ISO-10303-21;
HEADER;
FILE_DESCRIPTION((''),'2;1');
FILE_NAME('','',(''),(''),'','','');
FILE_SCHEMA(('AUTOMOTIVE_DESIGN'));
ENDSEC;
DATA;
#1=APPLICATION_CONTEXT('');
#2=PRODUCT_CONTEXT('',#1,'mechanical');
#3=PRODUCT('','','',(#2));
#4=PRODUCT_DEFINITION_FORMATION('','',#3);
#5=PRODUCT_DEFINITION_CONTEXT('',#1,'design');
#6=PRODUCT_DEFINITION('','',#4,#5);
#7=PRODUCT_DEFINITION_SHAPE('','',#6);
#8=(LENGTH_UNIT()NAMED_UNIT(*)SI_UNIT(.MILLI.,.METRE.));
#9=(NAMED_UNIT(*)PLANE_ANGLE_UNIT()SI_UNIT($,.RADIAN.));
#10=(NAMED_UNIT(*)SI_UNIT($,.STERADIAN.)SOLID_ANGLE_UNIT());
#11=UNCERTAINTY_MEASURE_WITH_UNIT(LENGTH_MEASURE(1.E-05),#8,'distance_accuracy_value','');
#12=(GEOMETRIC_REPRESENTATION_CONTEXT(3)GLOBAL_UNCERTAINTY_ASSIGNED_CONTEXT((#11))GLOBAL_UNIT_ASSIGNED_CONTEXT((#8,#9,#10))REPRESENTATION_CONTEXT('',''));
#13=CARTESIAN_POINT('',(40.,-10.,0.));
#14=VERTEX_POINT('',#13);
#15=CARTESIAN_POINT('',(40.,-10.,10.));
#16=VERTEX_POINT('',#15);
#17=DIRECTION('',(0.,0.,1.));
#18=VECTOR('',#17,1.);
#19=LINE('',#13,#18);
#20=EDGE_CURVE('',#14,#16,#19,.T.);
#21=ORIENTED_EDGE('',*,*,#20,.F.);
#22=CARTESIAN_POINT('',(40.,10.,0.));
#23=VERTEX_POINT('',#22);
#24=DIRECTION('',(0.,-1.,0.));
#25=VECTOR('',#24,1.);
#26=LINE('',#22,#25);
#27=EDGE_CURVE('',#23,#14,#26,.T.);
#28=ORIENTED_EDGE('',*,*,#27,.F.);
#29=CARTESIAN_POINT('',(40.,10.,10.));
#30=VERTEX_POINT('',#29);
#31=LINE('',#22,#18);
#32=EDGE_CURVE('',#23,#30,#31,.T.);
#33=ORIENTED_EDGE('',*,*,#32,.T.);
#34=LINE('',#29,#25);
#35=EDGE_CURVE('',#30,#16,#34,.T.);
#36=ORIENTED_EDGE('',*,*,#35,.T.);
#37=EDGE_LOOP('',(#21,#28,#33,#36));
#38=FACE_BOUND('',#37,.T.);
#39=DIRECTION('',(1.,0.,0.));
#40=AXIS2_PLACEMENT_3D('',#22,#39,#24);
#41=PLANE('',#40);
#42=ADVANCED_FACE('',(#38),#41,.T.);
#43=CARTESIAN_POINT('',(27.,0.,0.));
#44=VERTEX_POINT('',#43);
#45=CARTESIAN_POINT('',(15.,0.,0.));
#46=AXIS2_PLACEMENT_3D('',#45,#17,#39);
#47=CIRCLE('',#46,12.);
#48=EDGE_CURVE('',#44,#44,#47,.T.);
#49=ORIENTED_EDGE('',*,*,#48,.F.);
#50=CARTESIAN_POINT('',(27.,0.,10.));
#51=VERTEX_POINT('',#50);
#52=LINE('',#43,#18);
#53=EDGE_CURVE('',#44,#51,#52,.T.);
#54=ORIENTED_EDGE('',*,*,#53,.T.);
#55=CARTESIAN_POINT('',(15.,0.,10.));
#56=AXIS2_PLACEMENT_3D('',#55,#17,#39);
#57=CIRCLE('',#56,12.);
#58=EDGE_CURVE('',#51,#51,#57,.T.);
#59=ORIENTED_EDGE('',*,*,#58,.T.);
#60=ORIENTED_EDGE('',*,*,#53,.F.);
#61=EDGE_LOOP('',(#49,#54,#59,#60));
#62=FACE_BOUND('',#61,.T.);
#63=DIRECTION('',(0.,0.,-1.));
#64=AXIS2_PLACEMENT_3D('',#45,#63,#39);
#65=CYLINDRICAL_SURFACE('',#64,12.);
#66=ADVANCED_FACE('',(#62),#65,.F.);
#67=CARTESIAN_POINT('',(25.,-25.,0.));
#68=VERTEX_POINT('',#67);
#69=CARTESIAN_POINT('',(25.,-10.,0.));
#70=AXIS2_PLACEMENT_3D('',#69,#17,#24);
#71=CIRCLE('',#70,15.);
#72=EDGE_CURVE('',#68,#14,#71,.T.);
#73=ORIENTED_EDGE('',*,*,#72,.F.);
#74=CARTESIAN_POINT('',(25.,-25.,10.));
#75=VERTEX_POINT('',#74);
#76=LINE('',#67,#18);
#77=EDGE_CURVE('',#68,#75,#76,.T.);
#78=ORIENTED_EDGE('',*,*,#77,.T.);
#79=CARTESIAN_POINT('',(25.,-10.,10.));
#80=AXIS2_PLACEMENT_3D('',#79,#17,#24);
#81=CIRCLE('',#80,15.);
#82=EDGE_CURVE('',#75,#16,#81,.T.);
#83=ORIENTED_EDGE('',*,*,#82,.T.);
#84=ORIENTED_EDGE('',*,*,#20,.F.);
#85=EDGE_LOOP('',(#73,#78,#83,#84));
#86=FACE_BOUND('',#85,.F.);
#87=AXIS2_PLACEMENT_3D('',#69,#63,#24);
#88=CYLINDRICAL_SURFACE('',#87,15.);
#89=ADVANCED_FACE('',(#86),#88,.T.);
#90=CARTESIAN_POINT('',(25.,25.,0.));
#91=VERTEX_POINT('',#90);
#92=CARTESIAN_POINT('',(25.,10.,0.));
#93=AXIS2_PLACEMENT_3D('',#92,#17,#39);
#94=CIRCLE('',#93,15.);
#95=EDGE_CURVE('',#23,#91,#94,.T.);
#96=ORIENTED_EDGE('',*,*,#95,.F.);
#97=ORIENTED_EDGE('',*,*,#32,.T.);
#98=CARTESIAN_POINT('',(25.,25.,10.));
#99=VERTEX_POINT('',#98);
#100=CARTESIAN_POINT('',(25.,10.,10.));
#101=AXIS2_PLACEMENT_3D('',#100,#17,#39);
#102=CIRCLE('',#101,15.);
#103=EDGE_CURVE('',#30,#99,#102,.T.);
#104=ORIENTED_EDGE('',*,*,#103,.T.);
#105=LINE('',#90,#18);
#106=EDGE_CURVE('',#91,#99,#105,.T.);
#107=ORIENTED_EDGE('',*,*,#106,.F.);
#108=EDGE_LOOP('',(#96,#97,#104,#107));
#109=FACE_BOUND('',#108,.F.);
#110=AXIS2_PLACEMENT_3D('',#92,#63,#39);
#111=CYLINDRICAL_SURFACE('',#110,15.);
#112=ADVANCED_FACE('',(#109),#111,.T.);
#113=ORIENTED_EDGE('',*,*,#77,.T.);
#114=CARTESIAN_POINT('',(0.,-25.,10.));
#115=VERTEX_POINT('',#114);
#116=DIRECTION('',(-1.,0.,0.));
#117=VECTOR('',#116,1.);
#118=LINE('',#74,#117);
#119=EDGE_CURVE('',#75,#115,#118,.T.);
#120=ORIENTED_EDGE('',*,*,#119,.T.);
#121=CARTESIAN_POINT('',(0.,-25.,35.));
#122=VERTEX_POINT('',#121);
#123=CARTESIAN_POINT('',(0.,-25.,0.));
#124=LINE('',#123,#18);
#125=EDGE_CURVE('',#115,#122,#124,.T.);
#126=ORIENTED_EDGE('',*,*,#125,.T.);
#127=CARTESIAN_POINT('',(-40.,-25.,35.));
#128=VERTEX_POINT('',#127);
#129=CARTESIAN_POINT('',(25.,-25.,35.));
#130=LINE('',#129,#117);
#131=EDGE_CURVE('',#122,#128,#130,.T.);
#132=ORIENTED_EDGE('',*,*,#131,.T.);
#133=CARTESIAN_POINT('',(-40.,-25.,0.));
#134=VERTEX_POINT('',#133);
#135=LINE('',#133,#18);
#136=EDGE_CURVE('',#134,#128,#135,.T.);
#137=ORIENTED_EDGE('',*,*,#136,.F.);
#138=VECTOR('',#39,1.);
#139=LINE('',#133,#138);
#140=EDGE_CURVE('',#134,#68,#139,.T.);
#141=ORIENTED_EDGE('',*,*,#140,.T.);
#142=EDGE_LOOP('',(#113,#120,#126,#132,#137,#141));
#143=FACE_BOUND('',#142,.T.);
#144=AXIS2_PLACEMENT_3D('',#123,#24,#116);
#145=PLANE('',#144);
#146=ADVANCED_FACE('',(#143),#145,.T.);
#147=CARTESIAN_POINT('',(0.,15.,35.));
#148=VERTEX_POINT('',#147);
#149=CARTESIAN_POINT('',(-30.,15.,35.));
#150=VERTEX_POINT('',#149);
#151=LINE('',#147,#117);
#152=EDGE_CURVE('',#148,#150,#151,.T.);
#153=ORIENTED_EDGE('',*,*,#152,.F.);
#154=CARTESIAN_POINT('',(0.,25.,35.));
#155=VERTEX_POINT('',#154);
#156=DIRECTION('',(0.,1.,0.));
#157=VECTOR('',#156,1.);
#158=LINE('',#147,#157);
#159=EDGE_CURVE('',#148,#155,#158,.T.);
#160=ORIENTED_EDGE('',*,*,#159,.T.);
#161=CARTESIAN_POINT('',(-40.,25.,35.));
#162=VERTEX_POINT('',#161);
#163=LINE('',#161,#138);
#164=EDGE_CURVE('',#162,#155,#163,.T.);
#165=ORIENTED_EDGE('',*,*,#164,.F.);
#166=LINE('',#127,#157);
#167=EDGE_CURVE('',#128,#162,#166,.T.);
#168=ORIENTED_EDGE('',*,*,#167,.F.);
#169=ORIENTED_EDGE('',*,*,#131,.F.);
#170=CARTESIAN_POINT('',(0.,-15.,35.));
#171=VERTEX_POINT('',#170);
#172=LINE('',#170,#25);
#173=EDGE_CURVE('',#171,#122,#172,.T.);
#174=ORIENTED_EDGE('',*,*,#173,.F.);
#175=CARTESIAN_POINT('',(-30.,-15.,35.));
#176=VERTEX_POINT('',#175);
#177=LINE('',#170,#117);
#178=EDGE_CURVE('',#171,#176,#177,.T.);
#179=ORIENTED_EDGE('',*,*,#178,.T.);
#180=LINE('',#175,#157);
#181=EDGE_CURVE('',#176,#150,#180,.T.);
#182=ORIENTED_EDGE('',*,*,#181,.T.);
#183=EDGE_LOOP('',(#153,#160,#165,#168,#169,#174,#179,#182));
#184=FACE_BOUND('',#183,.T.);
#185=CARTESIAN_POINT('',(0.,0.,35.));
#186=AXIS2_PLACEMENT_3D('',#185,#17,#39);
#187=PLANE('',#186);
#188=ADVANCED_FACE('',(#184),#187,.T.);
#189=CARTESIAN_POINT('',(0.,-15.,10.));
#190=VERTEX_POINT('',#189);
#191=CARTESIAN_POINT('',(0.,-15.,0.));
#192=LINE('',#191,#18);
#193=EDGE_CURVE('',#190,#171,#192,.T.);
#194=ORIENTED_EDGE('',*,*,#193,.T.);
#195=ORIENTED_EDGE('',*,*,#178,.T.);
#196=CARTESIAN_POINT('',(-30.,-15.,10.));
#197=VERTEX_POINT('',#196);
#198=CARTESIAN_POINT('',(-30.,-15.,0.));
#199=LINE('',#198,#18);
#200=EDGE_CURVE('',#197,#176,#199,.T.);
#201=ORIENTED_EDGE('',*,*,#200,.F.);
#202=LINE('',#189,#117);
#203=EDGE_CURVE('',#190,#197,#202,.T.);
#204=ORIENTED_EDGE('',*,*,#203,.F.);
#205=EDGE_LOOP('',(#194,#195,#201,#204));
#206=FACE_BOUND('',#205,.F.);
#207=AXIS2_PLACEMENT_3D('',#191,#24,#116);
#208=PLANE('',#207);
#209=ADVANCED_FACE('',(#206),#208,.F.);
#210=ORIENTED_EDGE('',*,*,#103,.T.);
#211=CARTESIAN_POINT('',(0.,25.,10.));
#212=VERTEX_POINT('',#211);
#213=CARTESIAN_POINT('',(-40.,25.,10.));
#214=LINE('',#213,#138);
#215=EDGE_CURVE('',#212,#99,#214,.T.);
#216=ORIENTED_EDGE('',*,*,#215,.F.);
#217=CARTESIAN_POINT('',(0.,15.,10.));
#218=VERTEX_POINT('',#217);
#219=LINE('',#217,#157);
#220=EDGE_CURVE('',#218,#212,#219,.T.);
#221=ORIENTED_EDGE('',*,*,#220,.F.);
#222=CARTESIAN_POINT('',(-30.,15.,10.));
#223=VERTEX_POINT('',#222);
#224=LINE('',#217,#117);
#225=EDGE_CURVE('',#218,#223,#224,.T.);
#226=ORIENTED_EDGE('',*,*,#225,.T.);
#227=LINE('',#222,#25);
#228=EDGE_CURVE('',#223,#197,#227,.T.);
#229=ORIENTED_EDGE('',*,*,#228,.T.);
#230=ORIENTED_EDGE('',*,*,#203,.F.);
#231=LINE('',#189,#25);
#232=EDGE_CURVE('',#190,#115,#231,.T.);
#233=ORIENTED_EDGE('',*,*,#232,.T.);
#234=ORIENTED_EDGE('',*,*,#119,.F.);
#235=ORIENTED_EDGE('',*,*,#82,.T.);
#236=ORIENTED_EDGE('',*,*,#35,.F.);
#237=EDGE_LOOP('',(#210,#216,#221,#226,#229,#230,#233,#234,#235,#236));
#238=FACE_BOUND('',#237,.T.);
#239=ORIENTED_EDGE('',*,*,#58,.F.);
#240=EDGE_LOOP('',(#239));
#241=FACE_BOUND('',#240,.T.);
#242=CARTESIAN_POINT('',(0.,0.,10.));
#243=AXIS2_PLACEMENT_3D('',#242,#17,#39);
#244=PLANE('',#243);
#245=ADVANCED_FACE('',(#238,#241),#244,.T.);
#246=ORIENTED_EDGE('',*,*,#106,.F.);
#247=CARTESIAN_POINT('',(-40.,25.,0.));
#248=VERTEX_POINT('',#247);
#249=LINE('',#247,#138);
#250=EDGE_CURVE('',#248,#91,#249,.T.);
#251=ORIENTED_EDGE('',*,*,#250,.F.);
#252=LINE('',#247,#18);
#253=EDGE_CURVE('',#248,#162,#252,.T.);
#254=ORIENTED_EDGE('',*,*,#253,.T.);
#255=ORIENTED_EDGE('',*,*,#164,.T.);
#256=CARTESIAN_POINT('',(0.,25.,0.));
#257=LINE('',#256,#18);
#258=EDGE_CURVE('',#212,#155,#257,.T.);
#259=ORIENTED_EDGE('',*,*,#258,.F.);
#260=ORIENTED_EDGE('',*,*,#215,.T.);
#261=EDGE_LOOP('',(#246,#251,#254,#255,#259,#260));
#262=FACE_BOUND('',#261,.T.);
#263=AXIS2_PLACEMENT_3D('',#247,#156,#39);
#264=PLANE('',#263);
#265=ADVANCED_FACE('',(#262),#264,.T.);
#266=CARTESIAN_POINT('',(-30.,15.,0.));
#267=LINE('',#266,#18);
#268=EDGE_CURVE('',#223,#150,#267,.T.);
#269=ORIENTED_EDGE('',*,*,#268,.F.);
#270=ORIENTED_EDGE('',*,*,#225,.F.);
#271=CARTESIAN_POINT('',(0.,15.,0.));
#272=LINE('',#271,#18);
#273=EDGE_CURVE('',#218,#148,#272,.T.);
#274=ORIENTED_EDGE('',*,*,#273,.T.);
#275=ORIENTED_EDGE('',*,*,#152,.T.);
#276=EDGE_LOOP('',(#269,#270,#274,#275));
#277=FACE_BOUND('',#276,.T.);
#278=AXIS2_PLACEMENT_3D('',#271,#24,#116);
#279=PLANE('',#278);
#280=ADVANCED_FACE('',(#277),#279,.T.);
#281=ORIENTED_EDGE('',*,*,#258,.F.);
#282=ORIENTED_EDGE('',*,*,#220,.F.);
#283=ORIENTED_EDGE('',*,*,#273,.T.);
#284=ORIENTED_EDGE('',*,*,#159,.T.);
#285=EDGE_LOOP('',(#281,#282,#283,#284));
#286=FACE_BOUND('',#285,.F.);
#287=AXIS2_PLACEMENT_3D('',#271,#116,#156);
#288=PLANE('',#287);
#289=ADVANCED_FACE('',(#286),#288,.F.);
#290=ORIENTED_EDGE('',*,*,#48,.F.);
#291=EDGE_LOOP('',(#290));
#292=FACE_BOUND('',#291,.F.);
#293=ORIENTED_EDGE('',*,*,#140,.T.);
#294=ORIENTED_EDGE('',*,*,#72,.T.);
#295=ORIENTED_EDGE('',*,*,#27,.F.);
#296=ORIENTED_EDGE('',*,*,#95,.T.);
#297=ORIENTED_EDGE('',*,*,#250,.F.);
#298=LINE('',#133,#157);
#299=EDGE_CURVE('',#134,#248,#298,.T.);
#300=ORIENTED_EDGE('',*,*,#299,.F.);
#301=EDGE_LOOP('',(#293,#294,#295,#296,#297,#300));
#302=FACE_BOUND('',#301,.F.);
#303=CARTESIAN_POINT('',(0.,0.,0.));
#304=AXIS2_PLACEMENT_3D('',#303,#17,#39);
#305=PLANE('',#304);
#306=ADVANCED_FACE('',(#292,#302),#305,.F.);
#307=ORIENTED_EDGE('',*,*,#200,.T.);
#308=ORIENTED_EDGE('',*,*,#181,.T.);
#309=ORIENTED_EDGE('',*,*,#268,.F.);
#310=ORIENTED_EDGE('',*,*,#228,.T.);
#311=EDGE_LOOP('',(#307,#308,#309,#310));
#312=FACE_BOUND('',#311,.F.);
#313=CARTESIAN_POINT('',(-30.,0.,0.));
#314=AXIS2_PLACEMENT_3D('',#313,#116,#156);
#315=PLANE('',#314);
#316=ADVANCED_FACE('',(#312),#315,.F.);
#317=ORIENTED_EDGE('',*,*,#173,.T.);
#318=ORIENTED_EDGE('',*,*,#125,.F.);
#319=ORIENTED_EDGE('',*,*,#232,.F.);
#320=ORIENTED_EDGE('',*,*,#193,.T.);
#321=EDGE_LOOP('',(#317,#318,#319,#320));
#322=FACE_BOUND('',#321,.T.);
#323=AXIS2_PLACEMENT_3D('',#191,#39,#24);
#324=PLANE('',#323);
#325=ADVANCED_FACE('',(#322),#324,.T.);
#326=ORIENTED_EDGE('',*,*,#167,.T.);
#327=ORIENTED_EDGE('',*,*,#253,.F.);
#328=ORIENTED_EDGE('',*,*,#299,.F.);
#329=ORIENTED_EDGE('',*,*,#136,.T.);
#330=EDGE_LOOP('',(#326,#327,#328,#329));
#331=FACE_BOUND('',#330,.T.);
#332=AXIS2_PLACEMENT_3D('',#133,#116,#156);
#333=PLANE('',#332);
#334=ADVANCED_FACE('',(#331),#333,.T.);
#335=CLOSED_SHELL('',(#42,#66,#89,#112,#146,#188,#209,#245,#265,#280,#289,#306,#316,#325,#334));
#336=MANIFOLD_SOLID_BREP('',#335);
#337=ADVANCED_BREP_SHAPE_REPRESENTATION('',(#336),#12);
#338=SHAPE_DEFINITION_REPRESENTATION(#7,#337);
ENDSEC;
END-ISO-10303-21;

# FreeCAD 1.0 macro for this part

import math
import FreeCAD as App
import Part
import Sketcher

V = App.Vector


def add_polygon(sketch, points):
    """Adds a closed chain of lines whose ends are joined by coincident constraints."""
    first, n = sketch.GeometryCount, len(points)
    for a, b in zip(points, points[1:] + points[:1]):
        sketch.addGeometry(Part.LineSegment(App.Vector(*a, 0), App.Vector(*b, 0)), False)
    for i in range(n):
        sketch.addConstraint(Sketcher.Constraint("Coincident", first + i, 2, first + (i + 1) % n, 1))

doc = App.newDocument("Part")
params = doc.addObject("Spreadsheet::Sheet", "Params")
for row, (alias, value) in enumerate([
    ("sketch1_height", "50 mm"),
    ("sketch1_width", "40 mm"),
    ("pad1_length", "35 mm"),
    ("sketch2_diameter", "24 mm"),
    ("sketch2_radius", "15 mm"),
    ("sketch2_width", "25 mm"),
    ("sketch2_height", "20 mm"),
    ("pad2_length", "10 mm"),
], start=1):
    params.set(f"A{row}", alias)
    params.set(f"B{row}", "=" + value)
    params.setAlias(f"B{row}", alias)

body = doc.addObject("PartDesign::Body", "Body")

# Sketch on XY plane
sketch1 = body.newObject("Sketcher::SketchObject", "Sketch")
sketch1.AttachmentSupport = (doc.getObject("XY_Plane"), [""])
sketch1.MapMode = "FlatFace"
add_polygon(sketch1, [(-40, -25), (0, -25), (0, -15), (-30, -15), (-30, 15), (0, 15), (0, 25), (-40, 25)])  # lines 0-7
sketch1.addConstraint([
    Sketcher.Constraint("Horizontal", 0),
    Sketcher.Constraint("Vertical", 1),
    Sketcher.Constraint("Horizontal", 2),
    Sketcher.Constraint("Vertical", 3),
    Sketcher.Constraint("Horizontal", 4),
    Sketcher.Constraint("Vertical", 5),
    Sketcher.Constraint("Horizontal", 6),
    Sketcher.Constraint("Vertical", 7),
    Sketcher.Constraint("Symmetric", 1, 2, 4, 2, -1, 1),
    Sketcher.Constraint("Symmetric", 0, 2, 5, 2, -1),
    Sketcher.Constraint("Equal", 4, 3),
    Sketcher.Constraint("DistanceY", 7, 2, 7, 1, 50.0),
    Sketcher.Constraint("DistanceY", 1, 2, -1, 1, 15.0),
    Sketcher.Constraint("DistanceX", 0, 1, 0, 2, 40.0),
])
sketch1.setExpression("Constraints[19]", "Params.sketch1_height")
sketch1.setExpression("Constraints[21]", "Params.sketch1_width")
pad1 = body.newObject("PartDesign::Pad", "Pad")
pad1.Profile = sketch1
pad1.setExpression("Length", "Params.pad1_length")

# Sketch on XY plane
sketch2 = body.newObject("Sketcher::SketchObject", "Sketch001")
sketch2.AttachmentSupport = (doc.getObject("XY_Plane"), [""])
sketch2.MapMode = "FlatFace"
sketch2.addGeometry([
    Part.LineSegment(V(0, -25, 0), V(25, -25, 0)),  # 0
    Part.ArcOfCircle(Part.Circle(V(25, -10, 0), V(0, 0, 1), 15), math.radians(-90), math.radians(0)),  # 1
    Part.LineSegment(V(40, -10, 0), V(40, 10, 0)),  # 2
    Part.ArcOfCircle(Part.Circle(V(25, 10, 0), V(0, 0, 1), 15), math.radians(0), math.radians(90)),  # 3
    Part.LineSegment(V(25, 25, 0), V(0, 25, 0)),  # 4
    Part.LineSegment(V(0, 25, 0), V(0, 15, 0)),  # 5
    Part.LineSegment(V(0, 15, 0), V(-30, 15, 0)),  # 6
    Part.LineSegment(V(-30, 15, 0), V(-30, -15, 0)),  # 7
    Part.LineSegment(V(-30, -15, 0), V(0, -15, 0)),  # 8
    Part.LineSegment(V(0, -15, 0), V(0, -25, 0)),  # 9
    Part.Circle(V(15, 0, 0), V(0, 0, 1), 12),  # 10
], False)
sketch2.addConstraint([
    Sketcher.Constraint("Tangent", 0, 2, 1, 1),
    Sketcher.Constraint("Tangent", 1, 2, 2, 1),
    Sketcher.Constraint("Tangent", 2, 2, 3, 1),
    Sketcher.Constraint("Tangent", 3, 2, 4, 1),
    Sketcher.Constraint("Coincident", 4, 2, 5, 1),
    Sketcher.Constraint("Coincident", 5, 2, 6, 1),
    Sketcher.Constraint("Coincident", 6, 2, 7, 1),
    Sketcher.Constraint("Coincident", 7, 2, 8, 1),
    Sketcher.Constraint("Coincident", 8, 2, 9, 1),
    Sketcher.Constraint("Coincident", 9, 2, 0, 1),
    Sketcher.Constraint("Horizontal", 0),
    Sketcher.Constraint("Vertical", 2),
    Sketcher.Constraint("Horizontal", 4),
    Sketcher.Constraint("Vertical", 5),
    Sketcher.Constraint("Horizontal", 6),
    Sketcher.Constraint("Vertical", 7),
    Sketcher.Constraint("Horizontal", 8),
    Sketcher.Constraint("Vertical", 9),
    Sketcher.Constraint("Equal", 1, 3),
    Sketcher.Constraint("Symmetric", 5, 2, 8, 2, -1, 1),
    Sketcher.Constraint("Symmetric", 4, 2, 9, 2, -1),
    Sketcher.Constraint("PointOnObject", 10, 3, -1),
    Sketcher.Constraint("Equal", 8, 7),
    Sketcher.Constraint("Diameter", 10, 24.0),
    Sketcher.Constraint("Radius", 1, 15.0),
    Sketcher.Constraint("DistanceX", -1, 1, 10, 3, 15.0),
    Sketcher.Constraint("DistanceY", -1, 1, 5, 2, 15.0),
    Sketcher.Constraint("DistanceX", 0, 1, 0, 2, 25.0),
    Sketcher.Constraint("DistanceY", 2, 1, 2, 2, 20.0),
])
sketch2.setExpression("Constraints[23]", "Params.sketch2_diameter")
sketch2.setExpression("Constraints[24]", "Params.sketch2_radius")
sketch2.setExpression("Constraints[27]", "Params.sketch2_width")
sketch2.setExpression("Constraints[28]", "Params.sketch2_height")
pad2 = body.newObject("PartDesign::Pad", "Pad001")
pad2.Profile = sketch2
pad2.setExpression("Length", "Params.pad2_length")

doc.recompute()
